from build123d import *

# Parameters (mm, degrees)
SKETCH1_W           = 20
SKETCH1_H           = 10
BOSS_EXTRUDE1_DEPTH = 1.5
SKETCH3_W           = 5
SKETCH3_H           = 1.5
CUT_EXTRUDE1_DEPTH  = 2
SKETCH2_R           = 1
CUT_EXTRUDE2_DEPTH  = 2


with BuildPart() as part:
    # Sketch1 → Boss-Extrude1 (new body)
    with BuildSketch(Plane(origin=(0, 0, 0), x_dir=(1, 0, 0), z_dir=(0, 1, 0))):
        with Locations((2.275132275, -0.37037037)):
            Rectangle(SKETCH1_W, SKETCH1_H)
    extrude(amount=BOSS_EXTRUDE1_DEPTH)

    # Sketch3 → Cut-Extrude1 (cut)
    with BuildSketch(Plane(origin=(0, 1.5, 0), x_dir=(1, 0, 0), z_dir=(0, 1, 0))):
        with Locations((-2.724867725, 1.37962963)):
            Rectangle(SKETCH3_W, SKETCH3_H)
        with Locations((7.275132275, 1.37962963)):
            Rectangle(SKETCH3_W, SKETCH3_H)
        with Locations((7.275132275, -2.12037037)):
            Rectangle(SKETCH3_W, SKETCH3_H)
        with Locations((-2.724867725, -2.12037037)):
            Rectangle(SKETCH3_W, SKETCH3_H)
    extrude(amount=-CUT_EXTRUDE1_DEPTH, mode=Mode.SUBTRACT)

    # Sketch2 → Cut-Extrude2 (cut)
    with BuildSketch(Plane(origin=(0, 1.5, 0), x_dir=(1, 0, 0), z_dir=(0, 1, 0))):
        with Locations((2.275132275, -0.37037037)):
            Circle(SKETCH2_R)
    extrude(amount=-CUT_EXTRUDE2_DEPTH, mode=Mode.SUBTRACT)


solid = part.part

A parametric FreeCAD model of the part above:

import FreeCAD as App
import Part
import Sketcher
from FreeCAD import Vector
Q = App.Units.Quantity


def add_polygon(sketch, points):
    """Adds a closed chain of lines whose ends are joined by coincident constraints."""
    first, n = sketch.GeometryCount, len(points)
    for a, b in zip(points, points[1:] + points[:1]):
        sketch.addGeometry(Part.LineSegment(App.Vector(*a, 0), App.Vector(*b, 0)), False)
    for i in range(n):
        sketch.addConstraint(Sketcher.Constraint("Coincident", first + i, 2, first + (i + 1) % n, 1))

doc = App.newDocument("Part")
params = doc.addObject("Spreadsheet::Sheet", "Params")
for row, (alias, value) in enumerate([
    ("sketch1_width", "20 mm"),
    ("sketch1_height", "10 mm"),
    ("pad1_length", "1.5 mm"),
    ("sketch2_width", "5 mm"),
    ("sketch2_height", "1.5 mm"),
    ("pocket1_length", "2 mm"),
    ("sketch3_diameter", "2 mm"),
    ("pocket2_length", "2 mm"),
], start=1):
    params.set(f"A{row}", alias)
    params.set(f"B{row}", "=" + value)
    params.setAlias(f"B{row}", alias)

body = doc.addObject("PartDesign::Body", "Body")

# Sketch on XZ plane
sketch1 = doc.addObject("Sketcher::SketchObject", "Sketch")
body.addObject(sketch1)
sketch1.AttachmentSupport = (doc.XZ_Plane, [""])
sketch1.MapMode = "FlatFace"
add_polygon(sketch1, [(-7.724868, -4.62963), (-7.724868, 5.37037), (12.275132, 5.37037), (12.275132, -4.62963)])  # lines 0-3
sketch1.addConstraint(Sketcher.Constraint("Vertical", 0))
sketch1.addConstraint(Sketcher.Constraint("Horizontal", 1))
sketch1.addConstraint(Sketcher.Constraint("Vertical", 2))
sketch1.addConstraint(Sketcher.Constraint("Horizontal", 3))
sketch1.addConstraint(Sketcher.Constraint("DistanceX", 1, 1, 1, 2, Q("20 mm")))
sketch1.addConstraint(Sketcher.Constraint("DistanceY", 0, 1, 0, 2, Q("10 mm")))
sketch1.addConstraint(Sketcher.Constraint("DistanceY", -1, 1, 0, 2, Q("5.37037 mm")))
sketch1.addConstraint(Sketcher.Constraint("DistanceX", 0, 2, -1, 1, Q("7.724868 mm")))
sketch1.setExpression("Constraints[8]", "Params.sketch1_width")
sketch1.setExpression("Constraints[9]", "Params.sketch1_height")
pad1 = doc.addObject("PartDesign::Pad", "Pad")
body.addObject(pad1)
pad1.Profile = sketch1
pad1.setExpression("Length", "Params.pad1_length")
pad1.Reversed = True

# Sketch on XZ plane
sketch2 = doc.addObject("Sketcher::SketchObject", "Sketch001")
body.addObject(sketch2)
sketch2.AttachmentSupport = (doc.XZ_Plane, [""])
sketch2.MapMode = "FlatFace"
sketch2.AttachmentOffset = App.Placement(Vector(0, 0, -1.5), App.Rotation())
add_polygon(sketch2, [(-5.224868, -2.12963), (-5.224868, -0.62963), (-0.224868, -0.62963), (-0.224868, -2.12963)])  # lines 0-3
add_polygon(sketch2, [(4.775132, -2.12963), (4.775132, -0.62963), (9.775132, -0.62963), (9.775132, -2.12963)])  # lines 4-7
add_polygon(sketch2, [(4.775132, 1.37037), (4.775132, 2.87037), (9.775132, 2.87037), (9.775132, 1.37037)])  # lines 8-11
add_polygon(sketch2, [(-5.224868, 1.37037), (-5.224868, 2.87037), (-0.224868, 2.87037), (-0.224868, 1.37037)])  # lines 12-15
sketch2.addConstraint(Sketcher.Constraint("Vertical", 0))
sketch2.addConstraint(Sketcher.Constraint("Horizontal", 1))
sketch2.addConstraint(Sketcher.Constraint("Vertical", 2))
sketch2.addConstraint(Sketcher.Constraint("Horizontal", 3))
sketch2.addConstraint(Sketcher.Constraint("Vertical", 4))
sketch2.addConstraint(Sketcher.Constraint("Horizontal", 5))
sketch2.addConstraint(Sketcher.Constraint("Vertical", 6))
sketch2.addConstraint(Sketcher.Constraint("Horizontal", 7))
sketch2.addConstraint(Sketcher.Constraint("Vertical", 8))
sketch2.addConstraint(Sketcher.Constraint("Horizontal", 9))
sketch2.addConstraint(Sketcher.Constraint("Vertical", 10))
sketch2.addConstraint(Sketcher.Constraint("Horizontal", 11))
sketch2.addConstraint(Sketcher.Constraint("Vertical", 12))
sketch2.addConstraint(Sketcher.Constraint("Horizontal", 13))
sketch2.addConstraint(Sketcher.Constraint("Vertical", 14))
sketch2.addConstraint(Sketcher.Constraint("Horizontal", 15))
sketch2.addConstraint(Sketcher.Constraint("Horizontal", 1, 2, 4, 2))
sketch2.addConstraint(Sketcher.Constraint("Horizontal", 3, 2, 6, 2))
sketch2.addConstraint(Sketcher.Constraint("Horizontal", 9, 2, 12, 2))
sketch2.addConstraint(Sketcher.Constraint("Horizontal", 11, 2, 14, 2))
sketch2.addConstraint(Sketcher.Constraint("Vertical", 7, 2, 8, 2))
sketch2.addConstraint(Sketcher.Constraint("Vertical", 6, 2, 9, 2))
sketch2.addConstraint(Sketcher.Constraint("Vertical", 3, 2, 12, 2))
sketch2.addConstraint(Sketcher.Constraint("Vertical", 2, 2, 13, 2))
sketch2.addConstraint(Sketcher.Constraint("Equal", 3, 5))
sketch2.addConstraint(Sketcher.Constraint("Equal", 6, 8))
sketch2.addConstraint(Sketcher.Constraint("DistanceX", 1, 1, 1, 2, Q("5 mm")))
sketch2.addConstraint(Sketcher.Constraint("DistanceY", 0, 1, 0, 2, Q("1.5 mm")))
sketch2.addConstraint(Sketcher.Constraint("DistanceX", 1, 2, 4, 2, Q("5 mm")))
sketch2.addConstraint(Sketcher.Constraint("DistanceY", 7, 2, 8, 2, Q("5 mm")))
sketch2.addConstraint(Sketcher.Constraint("DistanceY", 0, 2, -1, 1, Q("0.62963 mm")))
sketch2.addConstraint(Sketcher.Constraint("DistanceX", 0, 2, -1, 1, Q("5.224868 mm")))
sketch2.setExpression("Constraints[42]", "Params.sketch2_width")
sketch2.setExpression("Constraints[43]", "Params.sketch2_height")
pocket1 = doc.addObject("PartDesign::Pocket", "Pocket")
body.addObject(pocket1)
pocket1.Profile = sketch2
pocket1.setExpression("Length", "Params.pocket1_length")
pocket1.Reversed = True

# Sketch on XZ plane
sketch3 = doc.addObject("Sketcher::SketchObject", "Sketch002")
body.addObject(sketch3)
sketch3.AttachmentSupport = (doc.XZ_Plane, [""])
sketch3.MapMode = "FlatFace"
sketch3.AttachmentOffset = App.Placement(Vector(0, 0, -1.5), App.Rotation())
sketch3.addGeometry(Part.Circle(Vector(2.275132, 0.37037, 0), Vector(0, 0, 1), 1), False)
sketch3.addConstraint(Sketcher.Constraint("Diameter", 0, Q("2 mm")))
sketch3.addConstraint(Sketcher.Constraint("DistanceY", -1, 1, 0, 3, Q("0.37037 mm")))
sketch3.addConstraint(Sketcher.Constraint("DistanceX", -1, 1, 0, 3, Q("2.275132 mm")))
sketch3.setExpression("Constraints[0]", "Params.sketch3_diameter")
pocket2 = doc.addObject("PartDesign::Pocket", "Pocket001")
body.addObject(pocket2)
pocket2.Profile = sketch3
pocket2.setExpression("Length", "Params.pocket2_length")
pocket2.Reversed = True

doc.recompute()
